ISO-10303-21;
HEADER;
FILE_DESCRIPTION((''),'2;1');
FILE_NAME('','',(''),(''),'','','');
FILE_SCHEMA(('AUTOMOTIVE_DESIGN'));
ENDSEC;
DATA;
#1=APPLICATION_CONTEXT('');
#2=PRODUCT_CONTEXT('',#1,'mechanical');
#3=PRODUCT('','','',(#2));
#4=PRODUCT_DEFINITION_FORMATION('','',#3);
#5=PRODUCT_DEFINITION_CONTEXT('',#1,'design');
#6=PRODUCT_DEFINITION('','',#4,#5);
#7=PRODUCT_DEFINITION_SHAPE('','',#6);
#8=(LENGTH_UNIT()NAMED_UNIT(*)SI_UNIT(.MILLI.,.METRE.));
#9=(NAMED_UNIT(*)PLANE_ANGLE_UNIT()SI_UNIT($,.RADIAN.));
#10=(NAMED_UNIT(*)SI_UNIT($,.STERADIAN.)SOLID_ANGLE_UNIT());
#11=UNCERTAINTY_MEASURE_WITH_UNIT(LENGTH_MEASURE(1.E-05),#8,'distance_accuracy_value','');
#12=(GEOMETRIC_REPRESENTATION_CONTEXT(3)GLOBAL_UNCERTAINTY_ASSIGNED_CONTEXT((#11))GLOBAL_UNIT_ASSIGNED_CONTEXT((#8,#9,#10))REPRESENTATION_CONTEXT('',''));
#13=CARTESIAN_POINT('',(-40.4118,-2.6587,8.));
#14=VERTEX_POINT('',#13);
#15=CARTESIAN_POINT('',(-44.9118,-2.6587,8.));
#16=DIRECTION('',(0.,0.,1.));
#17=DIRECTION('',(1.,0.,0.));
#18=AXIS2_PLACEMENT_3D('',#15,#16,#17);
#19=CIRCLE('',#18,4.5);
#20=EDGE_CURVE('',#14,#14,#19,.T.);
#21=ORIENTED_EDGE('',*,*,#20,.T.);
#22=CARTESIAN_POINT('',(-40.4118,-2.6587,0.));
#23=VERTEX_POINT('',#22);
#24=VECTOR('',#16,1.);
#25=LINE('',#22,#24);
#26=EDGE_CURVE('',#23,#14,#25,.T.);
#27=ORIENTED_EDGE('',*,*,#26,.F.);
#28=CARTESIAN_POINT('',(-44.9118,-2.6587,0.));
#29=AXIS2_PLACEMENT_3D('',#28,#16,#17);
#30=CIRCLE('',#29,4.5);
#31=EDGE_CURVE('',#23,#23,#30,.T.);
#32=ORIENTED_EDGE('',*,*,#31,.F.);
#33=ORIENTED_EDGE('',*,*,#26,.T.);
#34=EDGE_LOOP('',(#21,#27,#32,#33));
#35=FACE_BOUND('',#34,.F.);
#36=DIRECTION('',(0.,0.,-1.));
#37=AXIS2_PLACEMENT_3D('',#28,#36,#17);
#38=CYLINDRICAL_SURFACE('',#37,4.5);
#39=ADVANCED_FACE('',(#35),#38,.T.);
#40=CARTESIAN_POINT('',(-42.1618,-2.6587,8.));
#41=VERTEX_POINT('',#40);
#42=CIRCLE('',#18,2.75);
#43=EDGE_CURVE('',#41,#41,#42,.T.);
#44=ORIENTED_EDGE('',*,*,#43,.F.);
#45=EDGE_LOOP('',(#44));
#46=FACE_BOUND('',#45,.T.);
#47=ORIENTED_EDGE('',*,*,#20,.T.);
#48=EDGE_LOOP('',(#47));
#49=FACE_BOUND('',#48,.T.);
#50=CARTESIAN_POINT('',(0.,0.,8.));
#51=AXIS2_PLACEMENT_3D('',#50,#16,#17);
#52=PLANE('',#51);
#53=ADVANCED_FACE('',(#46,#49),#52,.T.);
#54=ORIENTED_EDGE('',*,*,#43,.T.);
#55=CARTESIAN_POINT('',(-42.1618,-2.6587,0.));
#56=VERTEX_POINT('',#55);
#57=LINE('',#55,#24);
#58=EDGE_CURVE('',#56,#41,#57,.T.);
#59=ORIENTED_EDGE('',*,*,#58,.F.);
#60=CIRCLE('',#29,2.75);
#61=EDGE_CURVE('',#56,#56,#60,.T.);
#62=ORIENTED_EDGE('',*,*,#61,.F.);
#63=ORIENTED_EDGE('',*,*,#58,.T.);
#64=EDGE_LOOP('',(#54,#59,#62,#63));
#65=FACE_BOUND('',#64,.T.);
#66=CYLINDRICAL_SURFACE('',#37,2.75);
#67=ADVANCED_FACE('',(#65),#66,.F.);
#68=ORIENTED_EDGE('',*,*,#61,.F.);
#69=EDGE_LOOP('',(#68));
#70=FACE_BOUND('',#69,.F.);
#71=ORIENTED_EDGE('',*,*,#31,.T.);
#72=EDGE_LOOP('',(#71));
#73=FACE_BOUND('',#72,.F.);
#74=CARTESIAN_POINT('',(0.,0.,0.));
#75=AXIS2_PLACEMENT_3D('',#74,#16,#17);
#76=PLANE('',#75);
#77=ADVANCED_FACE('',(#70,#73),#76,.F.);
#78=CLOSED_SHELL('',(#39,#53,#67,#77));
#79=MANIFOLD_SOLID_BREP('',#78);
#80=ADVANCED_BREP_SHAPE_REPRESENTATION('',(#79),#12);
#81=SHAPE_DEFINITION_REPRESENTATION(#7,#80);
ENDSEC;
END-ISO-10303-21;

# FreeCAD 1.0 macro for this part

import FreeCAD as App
import Part
import Sketcher

V = App.Vector
Q = App.Units.Quantity

doc = App.newDocument("Part")
params = doc.addObject("Spreadsheet::Sheet", "Params")
for row, (alias, value) in enumerate([
    ("sketch1_diameter", "9 mm"),
    ("sketch1_diameter2", "5.5 mm"),
    ("pad1_length", "8 mm"),
], start=1):
    params.set(f"A{row}", alias)
    params.set(f"B{row}", "=" + value)
    params.setAlias(f"B{row}", alias)

body = doc.addObject("PartDesign::Body", "Body")

# Sketch on XY plane
sketch1 = doc.addObject("Sketcher::SketchObject", "Sketch")
body.addObject(sketch1)
sketch1.AttachmentSupport = (doc.XY_Plane, [""])
sketch1.MapMode = "FlatFace"
sketch1.addGeometry([
    Part.Circle(V(-44.9, -2.7, 0), V(0, 0, 1), 4.5),
    Part.Circle(V(-44.9, -2.7, 0), V(0, 0, 1), 2.8),
], False)
sketch1.addConstraint([
    Sketcher.Constraint("Coincident", 1, 3, 0, 3),
    Sketcher.Constraint("Diameter", 0, Q("9 mm")),
    Sketcher.Constraint("Diameter", 1, Q("5.5 mm")),
    Sketcher.Constraint("DistanceX", 0, 3, -1, 1, Q("44.9118 mm")),
    Sketcher.Constraint("DistanceY", 0, 3, -1, 1, Q("2.6587 mm")),
])
sketch1.setExpression("Constraints[1]", "Params.sketch1_diameter")
sketch1.setExpression("Constraints[2]", "Params.sketch1_diameter2")
pad1 = doc.addObject("PartDesign::Pad", "Pad")
body.addObject(pad1)
pad1.Profile = sketch1
pad1.setExpression("Length", "Params.pad1_length")

doc.recompute()
